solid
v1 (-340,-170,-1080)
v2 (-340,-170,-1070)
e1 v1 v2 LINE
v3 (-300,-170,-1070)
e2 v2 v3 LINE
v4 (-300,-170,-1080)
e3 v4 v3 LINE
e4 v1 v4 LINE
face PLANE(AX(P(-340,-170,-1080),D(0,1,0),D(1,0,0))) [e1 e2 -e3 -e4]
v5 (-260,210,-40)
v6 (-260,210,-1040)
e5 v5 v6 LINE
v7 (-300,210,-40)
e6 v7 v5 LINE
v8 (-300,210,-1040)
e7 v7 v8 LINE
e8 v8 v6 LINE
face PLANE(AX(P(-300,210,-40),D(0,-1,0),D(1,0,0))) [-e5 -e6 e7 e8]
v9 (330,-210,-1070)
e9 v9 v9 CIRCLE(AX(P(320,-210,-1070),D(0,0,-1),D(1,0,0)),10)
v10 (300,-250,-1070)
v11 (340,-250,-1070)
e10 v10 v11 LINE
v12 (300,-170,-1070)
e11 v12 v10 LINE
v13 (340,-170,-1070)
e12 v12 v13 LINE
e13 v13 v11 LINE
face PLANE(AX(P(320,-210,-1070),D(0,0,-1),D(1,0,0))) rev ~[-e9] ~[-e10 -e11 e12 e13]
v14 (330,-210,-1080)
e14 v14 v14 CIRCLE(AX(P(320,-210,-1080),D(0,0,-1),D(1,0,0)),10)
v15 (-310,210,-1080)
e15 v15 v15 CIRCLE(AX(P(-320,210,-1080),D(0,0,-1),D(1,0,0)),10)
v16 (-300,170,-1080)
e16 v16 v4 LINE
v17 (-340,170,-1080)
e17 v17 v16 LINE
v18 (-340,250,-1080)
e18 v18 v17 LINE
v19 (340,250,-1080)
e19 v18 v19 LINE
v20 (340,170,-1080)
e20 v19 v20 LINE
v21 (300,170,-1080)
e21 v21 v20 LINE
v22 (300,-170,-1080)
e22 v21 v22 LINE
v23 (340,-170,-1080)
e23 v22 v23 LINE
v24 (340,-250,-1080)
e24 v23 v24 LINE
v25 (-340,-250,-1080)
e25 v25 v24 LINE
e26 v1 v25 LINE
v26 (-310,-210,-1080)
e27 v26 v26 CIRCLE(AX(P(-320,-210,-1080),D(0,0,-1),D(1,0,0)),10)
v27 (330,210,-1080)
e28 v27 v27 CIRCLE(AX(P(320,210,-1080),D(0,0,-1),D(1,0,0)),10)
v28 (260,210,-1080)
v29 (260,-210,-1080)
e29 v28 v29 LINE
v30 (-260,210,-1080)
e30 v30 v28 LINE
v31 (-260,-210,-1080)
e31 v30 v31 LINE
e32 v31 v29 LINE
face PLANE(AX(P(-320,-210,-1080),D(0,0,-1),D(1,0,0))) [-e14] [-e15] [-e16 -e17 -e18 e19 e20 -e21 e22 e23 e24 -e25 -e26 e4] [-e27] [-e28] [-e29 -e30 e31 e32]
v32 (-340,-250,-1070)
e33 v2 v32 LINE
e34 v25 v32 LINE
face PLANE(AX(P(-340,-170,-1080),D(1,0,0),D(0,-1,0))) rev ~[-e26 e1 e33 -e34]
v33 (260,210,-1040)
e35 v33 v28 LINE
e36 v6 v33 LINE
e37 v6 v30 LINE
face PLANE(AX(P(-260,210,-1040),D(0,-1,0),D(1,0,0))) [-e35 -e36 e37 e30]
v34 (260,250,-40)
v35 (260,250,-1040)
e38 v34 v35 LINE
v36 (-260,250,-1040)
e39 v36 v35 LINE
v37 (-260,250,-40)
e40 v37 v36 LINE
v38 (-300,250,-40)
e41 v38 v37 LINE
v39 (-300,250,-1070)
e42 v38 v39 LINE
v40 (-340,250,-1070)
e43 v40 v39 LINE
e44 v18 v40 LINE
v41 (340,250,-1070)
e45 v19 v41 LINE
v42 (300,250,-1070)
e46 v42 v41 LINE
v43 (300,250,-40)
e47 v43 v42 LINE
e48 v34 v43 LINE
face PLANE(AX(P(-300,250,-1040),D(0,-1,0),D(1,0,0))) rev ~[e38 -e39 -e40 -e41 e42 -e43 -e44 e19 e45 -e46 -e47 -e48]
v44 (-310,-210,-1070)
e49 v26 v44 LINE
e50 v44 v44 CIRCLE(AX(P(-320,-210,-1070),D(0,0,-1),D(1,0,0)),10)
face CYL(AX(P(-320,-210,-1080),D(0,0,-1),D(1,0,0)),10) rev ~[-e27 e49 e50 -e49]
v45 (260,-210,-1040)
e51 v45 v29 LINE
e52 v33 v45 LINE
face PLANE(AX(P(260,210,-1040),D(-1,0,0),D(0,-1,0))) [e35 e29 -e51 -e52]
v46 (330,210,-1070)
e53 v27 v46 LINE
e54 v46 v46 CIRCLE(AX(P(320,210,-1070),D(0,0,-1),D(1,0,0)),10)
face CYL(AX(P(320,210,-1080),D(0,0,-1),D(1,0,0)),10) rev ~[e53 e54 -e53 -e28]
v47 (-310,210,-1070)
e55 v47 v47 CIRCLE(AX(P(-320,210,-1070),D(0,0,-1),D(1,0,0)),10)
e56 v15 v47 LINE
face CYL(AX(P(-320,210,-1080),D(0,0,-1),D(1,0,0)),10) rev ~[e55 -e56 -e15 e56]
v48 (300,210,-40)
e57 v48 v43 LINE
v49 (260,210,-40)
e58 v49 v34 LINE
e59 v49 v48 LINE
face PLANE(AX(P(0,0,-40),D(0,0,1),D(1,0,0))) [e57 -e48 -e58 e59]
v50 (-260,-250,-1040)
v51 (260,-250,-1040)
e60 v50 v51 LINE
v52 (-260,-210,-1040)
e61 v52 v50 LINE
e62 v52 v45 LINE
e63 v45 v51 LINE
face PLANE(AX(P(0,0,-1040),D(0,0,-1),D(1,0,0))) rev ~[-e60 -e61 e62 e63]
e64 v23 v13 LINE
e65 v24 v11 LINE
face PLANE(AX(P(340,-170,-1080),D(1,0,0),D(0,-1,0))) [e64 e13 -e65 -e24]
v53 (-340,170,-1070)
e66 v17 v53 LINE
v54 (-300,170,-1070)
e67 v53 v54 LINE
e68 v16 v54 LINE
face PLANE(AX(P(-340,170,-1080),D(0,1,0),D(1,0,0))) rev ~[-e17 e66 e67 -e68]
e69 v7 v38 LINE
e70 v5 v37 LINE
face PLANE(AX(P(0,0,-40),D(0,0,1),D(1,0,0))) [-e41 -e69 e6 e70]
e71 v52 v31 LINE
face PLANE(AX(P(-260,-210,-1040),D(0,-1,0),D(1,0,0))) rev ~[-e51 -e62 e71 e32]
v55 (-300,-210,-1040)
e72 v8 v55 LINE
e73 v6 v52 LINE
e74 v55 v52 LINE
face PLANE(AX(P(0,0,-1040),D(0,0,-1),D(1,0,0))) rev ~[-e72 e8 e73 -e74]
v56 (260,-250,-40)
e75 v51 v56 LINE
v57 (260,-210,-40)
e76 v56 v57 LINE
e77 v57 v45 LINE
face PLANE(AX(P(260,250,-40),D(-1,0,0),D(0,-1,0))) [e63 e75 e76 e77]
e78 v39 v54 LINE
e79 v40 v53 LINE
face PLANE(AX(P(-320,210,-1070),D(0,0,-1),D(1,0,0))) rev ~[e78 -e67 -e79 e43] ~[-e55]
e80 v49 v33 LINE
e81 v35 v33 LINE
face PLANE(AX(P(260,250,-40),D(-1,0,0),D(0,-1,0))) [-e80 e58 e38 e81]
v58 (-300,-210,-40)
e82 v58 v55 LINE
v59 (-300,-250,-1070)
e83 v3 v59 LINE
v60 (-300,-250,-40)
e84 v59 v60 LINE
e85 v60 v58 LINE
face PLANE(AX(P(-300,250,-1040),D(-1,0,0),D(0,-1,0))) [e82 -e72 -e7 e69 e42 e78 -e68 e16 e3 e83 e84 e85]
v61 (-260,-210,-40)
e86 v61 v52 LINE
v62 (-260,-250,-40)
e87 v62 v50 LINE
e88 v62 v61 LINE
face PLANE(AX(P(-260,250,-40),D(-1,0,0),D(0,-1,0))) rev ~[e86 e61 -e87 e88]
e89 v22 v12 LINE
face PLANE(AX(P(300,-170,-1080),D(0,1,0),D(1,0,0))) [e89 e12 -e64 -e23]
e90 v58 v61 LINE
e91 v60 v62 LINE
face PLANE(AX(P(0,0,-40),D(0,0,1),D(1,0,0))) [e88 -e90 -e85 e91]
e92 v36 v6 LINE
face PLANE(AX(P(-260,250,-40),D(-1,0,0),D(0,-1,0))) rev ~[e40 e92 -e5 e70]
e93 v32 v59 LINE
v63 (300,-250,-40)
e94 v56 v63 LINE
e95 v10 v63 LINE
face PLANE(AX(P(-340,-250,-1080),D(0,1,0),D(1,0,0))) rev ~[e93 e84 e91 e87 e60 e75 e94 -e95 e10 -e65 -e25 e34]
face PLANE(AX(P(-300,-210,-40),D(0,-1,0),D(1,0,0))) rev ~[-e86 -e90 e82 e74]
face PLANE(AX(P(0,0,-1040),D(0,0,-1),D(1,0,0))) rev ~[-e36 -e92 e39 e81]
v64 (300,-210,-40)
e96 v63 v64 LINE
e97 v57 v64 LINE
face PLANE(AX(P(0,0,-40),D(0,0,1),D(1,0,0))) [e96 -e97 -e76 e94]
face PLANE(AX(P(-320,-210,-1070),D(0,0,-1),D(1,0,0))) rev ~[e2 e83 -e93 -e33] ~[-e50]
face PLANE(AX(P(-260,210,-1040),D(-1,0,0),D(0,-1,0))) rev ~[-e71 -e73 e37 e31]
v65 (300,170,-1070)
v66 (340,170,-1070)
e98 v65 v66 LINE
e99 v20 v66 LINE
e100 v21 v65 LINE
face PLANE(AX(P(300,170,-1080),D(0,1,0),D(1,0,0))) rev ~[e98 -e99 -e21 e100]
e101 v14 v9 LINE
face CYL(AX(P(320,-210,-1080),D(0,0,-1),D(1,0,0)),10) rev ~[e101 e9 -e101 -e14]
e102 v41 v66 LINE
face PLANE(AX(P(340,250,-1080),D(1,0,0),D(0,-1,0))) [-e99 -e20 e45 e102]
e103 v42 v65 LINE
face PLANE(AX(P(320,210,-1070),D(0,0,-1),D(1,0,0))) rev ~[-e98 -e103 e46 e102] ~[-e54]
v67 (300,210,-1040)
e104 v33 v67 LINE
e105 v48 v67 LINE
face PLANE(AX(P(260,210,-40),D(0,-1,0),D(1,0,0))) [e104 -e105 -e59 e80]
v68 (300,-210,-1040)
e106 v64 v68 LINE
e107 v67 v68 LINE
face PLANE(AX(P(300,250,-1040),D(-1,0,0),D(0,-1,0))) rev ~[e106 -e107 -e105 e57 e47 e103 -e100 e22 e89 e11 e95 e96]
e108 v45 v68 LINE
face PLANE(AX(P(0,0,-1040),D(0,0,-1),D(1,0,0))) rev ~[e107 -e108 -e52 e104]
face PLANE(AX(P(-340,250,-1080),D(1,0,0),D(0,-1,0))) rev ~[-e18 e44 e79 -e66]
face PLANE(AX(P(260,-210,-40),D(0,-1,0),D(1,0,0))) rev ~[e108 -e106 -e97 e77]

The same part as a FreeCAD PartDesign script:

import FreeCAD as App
import Part
import Sketcher

V = App.Vector
Q = App.Units.Quantity


def add_polygon(sketch, points):
    """Adds a closed chain of lines whose ends are joined by coincident constraints."""
    first, n = sketch.GeometryCount, len(points)
    for a, b in zip(points, points[1:] + points[:1]):
        sketch.addGeometry(Part.LineSegment(App.Vector(*a, 0), App.Vector(*b, 0)), False)
    for i in range(n):
        sketch.addConstraint(Sketcher.Constraint("Coincident", first + i, 2, first + (i + 1) % n, 1))

doc = App.newDocument("Part")
body = doc.addObject("PartDesign::Body", "Body")
body.AllowCompound = True

# Sketch on XY plane
sketch1 = body.newObject("Sketcher::SketchObject", "Sketch")
sketch1.AttachmentSupport = (doc.getObject("XY_Plane"), [""])
sketch1.MapMode = "FlatFace"
add_polygon(sketch1, [(260, 250), (260, -250), (300, -250), (300, 250)])  # lines 0-3
add_polygon(sketch1, [(-300, 250), (-300, -250), (-260, -250), (-260, 250)])  # lines 4-7
sketch1.addConstraint([
    Sketcher.Constraint("Vertical", 0),
    Sketcher.Constraint("Horizontal", 1),
    Sketcher.Constraint("Vertical", 2),
    Sketcher.Constraint("Horizontal", 3),
    Sketcher.Constraint("Vertical", 4),
    Sketcher.Constraint("Horizontal", 5),
    Sketcher.Constraint("Vertical", 6),
    Sketcher.Constraint("Horizontal", 7),
    Sketcher.Constraint("Symmetric", 2, 2, 4, 2, -1, 1),
    Sketcher.Constraint("Symmetric", 0, 2, 6, 2, -1, 1),
    Sketcher.Constraint("Horizontal", 1, 2, 4, 2),
    Sketcher.Constraint("DistanceX", 1, 1, 1, 2, Q("40 mm")),
    Sketcher.Constraint("DistanceY", 0, 2, 0, 1, Q("500 mm")),
    Sketcher.Constraint("DistanceX", -1, 1, 0, 2, Q("260 mm")),
])
pad1 = body.newObject("PartDesign::Pad", "Pad")
pad1.Profile = sketch1
pad1.Length = 40
pad1.Reversed = True

# Sketch on XY plane
sketch2 = body.newObject("Sketcher::SketchObject", "Sketch001")
sketch2.AttachmentSupport = (doc.getObject("XY_Plane"), [""])
sketch2.MapMode = "FlatFace"
sketch2.AttachmentOffset = App.Placement(V(0, 0, -40), App.Rotation())
add_polygon(sketch2, [(260, 210), (260, 250), (300, 250), (300, 210)])  # lines 0-3
add_polygon(sketch2, [(-300, 210), (-300, 250), (-260, 250), (-260, 210)])  # lines 4-7
add_polygon(sketch2, [(260, -250), (260, -210), (300, -210), (300, -250)])  # lines 8-11
add_polygon(sketch2, [(-300, -250), (-300, -210), (-260, -210), (-260, -250)])  # lines 12-15
sketch2.addConstraint([
    Sketcher.Constraint("Vertical", 0),
    Sketcher.Constraint("Horizontal", 1),
    Sketcher.Constraint("Vertical", 2),
    Sketcher.Constraint("Horizontal", 3),
    Sketcher.Constraint("Vertical", 4),
    Sketcher.Constraint("Horizontal", 5),
    Sketcher.Constraint("Vertical", 6),
    Sketcher.Constraint("Horizontal", 7),
    Sketcher.Constraint("Vertical", 8),
    Sketcher.Constraint("Horizontal", 9),
    Sketcher.Constraint("Vertical", 10),
    Sketcher.Constraint("Horizontal", 11),
    Sketcher.Constraint("Vertical", 12),
    Sketcher.Constraint("Horizontal", 13),
    Sketcher.Constraint("Vertical", 14),
    Sketcher.Constraint("Horizontal", 15),
    Sketcher.Constraint("Symmetric", 6, 2, 8, 2, -1, 1),
    Sketcher.Constraint("Symmetric", 4, 2, 10, 2, -1, 1),
    Sketcher.Constraint("Symmetric", 2, 2, 12, 2, -1, 1),
    Sketcher.Constraint("Symmetric", 0, 2, 14, 2, -1, 1),
    Sketcher.Constraint("Symmetric", 1, 2, 4, 2, -2),
    Sketcher.Constraint("Symmetric", 3, 2, 6, 2, -2),
    Sketcher.Constraint("Equal", 15, 0),
    Sketcher.Constraint("DistanceX", 1, 1, 1, 2, Q("40 mm")),
    Sketcher.Constraint("DistanceX", -1, 1, 0, 2, Q("260 mm")),
    Sketcher.Constraint("DistanceY", -1, 1, 0, 2, Q("250 mm")),
])
pad2 = body.newObject("PartDesign::Pad", "Pad001")
pad2.Profile = sketch2
pad2.Length = 1000
pad2.Reversed = True

# Sketch on XY plane
sketch3 = body.newObject("Sketcher::SketchObject", "Sketch002")
sketch3.AttachmentSupport = (doc.getObject("XY_Plane"), [""])
sketch3.MapMode = "FlatFace"
sketch3.AttachmentOffset = App.Placement(V(0, 0, -1040), App.Rotation())
add_polygon(sketch3, [(-300, -250), (-300, 250), (300, 250), (300, -250)])  # lines 0-3
add_polygon(sketch3, [(260, 210), (-260, 210), (-260, -210), (260, -210)])  # lines 4-7
sketch3.addConstraint([
    Sketcher.Constraint("Vertical", 0),
    Sketcher.Constraint("Horizontal", 1),
    Sketcher.Constraint("Vertical", 2),
    Sketcher.Constraint("Horizontal", 3),
    Sketcher.Constraint("Horizontal", 4),
    Sketcher.Constraint("Vertical", 5),
    Sketcher.Constraint("Horizontal", 6),
    Sketcher.Constraint("Vertical", 7),
    Sketcher.Constraint("Symmetric", 0, 2, 2, 2, -1, 1),
    Sketcher.Constraint("Symmetric", 4, 2, 6, 2, -1, 1),
    Sketcher.Constraint("DistanceX", 1, 1, 1, 2, Q("600 mm")),
    Sketcher.Constraint("DistanceX", 4, 2, 4, 1, Q("520 mm")),
    Sketcher.Constraint("DistanceY", 0, 1, 0, 2, Q("500 mm")),
    Sketcher.Constraint("DistanceY", 5, 2, 5, 1, Q("420 mm")),
])
pad3 = body.newObject("PartDesign::Pad", "Pad002")
pad3.Profile = sketch3
pad3.Length = 40
pad3.Reversed = True

# Sketch on XY plane
sketch4 = body.newObject("Sketcher::SketchObject", "Sketch003")
sketch4.AttachmentSupport = (doc.getObject("XY_Plane"), [""])
sketch4.MapMode = "FlatFace"
sketch4.AttachmentOffset = App.Placement(V(0, 0, -1080), App.Rotation())
add_polygon(sketch4, [(-340, -250), (-340, -170), (-300, -170), (-300, -250)])  # lines 0-3
sketch4.addGeometry(Part.Circle(V(-320, -210, 0), V(0, 0, 1), 10), False)  # 4
add_polygon(sketch4, [(300, -250), (300, -170), (340, -170), (340, -250)])  # lines 5-8
sketch4.addGeometry(Part.Circle(V(320, -210, 0), V(0, 0, 1), 10), False)  # 9
add_polygon(sketch4, [(-340, 170), (-340, 250), (-300, 250), (-300, 170)])  # lines 10-13
sketch4.addGeometry(Part.Circle(V(-320, 210, 0), V(0, 0, 1), 10), False)  # 14
add_polygon(sketch4, [(300, 170), (300, 250), (340, 250), (340, 170)])  # lines 15-18
sketch4.addGeometry(Part.Circle(V(320, 210, 0), V(0, 0, 1), 10), False)  # 19
sketch4.addConstraint([
    Sketcher.Constraint("Vertical", 0),
    Sketcher.Constraint("Horizontal", 1),
    Sketcher.Constraint("Vertical", 2),
    Sketcher.Constraint("Horizontal", 3),
    Sketcher.Constraint("Vertical", 5),
    Sketcher.Constraint("Horizontal", 6),
    Sketcher.Constraint("Vertical", 7),
    Sketcher.Constraint("Horizontal", 8),
    Sketcher.Constraint("Vertical", 10),
    Sketcher.Constraint("Horizontal", 11),
    Sketcher.Constraint("Vertical", 12),
    Sketcher.Constraint("Horizontal", 13),
    Sketcher.Constraint("Vertical", 15),
    Sketcher.Constraint("Horizontal", 16),
    Sketcher.Constraint("Vertical", 17),
    Sketcher.Constraint("Horizontal", 18),
    Sketcher.Constraint("Equal", 4, 9),
    Sketcher.Constraint("Equal", 9, 14),
    Sketcher.Constraint("Equal", 14, 19),
    Sketcher.Constraint("Symmetric", 9, 3, 14, 3, -1, 1),
    Sketcher.Constraint("Symmetric", 4, 3, 19, 3, -1, 1),
    Sketcher.Constraint("Symmetric", 7, 2, 10, 2, -1, 1),
    Sketcher.Constraint("Symmetric", 5, 2, 12, 2, -1, 1),
    Sketcher.Constraint("Symmetric", 2, 2, 15, 2, -1, 1),
    Sketcher.Constraint("Symmetric", 0, 2, 17, 2, -1, 1),
    Sketcher.Constraint("Symmetric", 4, 3, 9, 3, -2),
    Sketcher.Constraint("Symmetric", 1, 2, 5, 2, -2),
    Sketcher.Constraint("Symmetric", 3, 2, 7, 2, -2),
    Sketcher.Constraint("Diameter", 4, Q("20 mm")),
    Sketcher.Constraint("DistanceX", 1, 1, 1, 2, Q("40 mm")),
    Sketcher.Constraint("DistanceY", 0, 1, 0, 2, Q("80 mm")),
    Sketcher.Constraint("DistanceX", 4, 3, -1, 1, Q("320 mm")),
    Sketcher.Constraint("DistanceY", 4, 3, -1, 1, Q("210 mm")),
    Sketcher.Constraint("DistanceX", 0, 2, -1, 1, Q("340 mm")),
    Sketcher.Constraint("DistanceY", 0, 2, -1, 1, Q("170 mm")),
])
pad4 = body.newObject("PartDesign::Pad", "Pad003")
pad4.Profile = sketch4
pad4.Length = 10

# Sketch on XY plane
sketch5 = body.newObject("Sketcher::SketchObject", "Sketch004")
sketch5.AttachmentSupport = (doc.getObject("XY_Plane"), [""])
sketch5.MapMode = "FlatFace"
add_polygon(sketch5, [(-300, 250), (-300, -250), (300, -250), (300, 250)])  # lines 0-3
sketch5.addConstraint([
    Sketcher.Constraint("Vertical", 0),
    Sketcher.Constraint("Horizontal", 1),
    Sketcher.Constraint("Vertical", 2),
    Sketcher.Constraint("Horizontal", 3),
    Sketcher.Constraint("Symmetric", 0, 2, 2, 2, -1, 1),
    Sketcher.Constraint("DistanceX", 1, 1, 1, 2, Q("600 mm")),
    Sketcher.Constraint("DistanceY", 0, 2, 0, 1, Q("500 mm")),
])
pocket1 = body.newObject("PartDesign::Pocket", "Pocket")
pocket1.Profile = sketch5
pocket1.Length = 40

doc.recompute()
